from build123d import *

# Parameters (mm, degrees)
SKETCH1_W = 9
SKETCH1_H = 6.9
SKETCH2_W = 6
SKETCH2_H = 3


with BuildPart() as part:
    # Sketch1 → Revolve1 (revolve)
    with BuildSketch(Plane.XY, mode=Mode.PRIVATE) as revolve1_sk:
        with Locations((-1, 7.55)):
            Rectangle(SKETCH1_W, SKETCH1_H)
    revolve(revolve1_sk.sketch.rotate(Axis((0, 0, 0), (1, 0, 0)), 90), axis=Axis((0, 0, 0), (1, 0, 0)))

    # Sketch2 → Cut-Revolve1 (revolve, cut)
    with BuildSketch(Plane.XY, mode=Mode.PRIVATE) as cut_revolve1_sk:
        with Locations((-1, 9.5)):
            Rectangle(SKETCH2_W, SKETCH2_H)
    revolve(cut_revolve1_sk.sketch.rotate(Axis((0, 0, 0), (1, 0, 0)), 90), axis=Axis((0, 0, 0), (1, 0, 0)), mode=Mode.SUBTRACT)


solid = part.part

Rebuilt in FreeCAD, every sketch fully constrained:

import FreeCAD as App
import Part
import Sketcher

V = App.Vector
Q = App.Units.Quantity

doc = App.newDocument("Part")
body = doc.addObject("PartDesign::Body", "Body")

# Sketch on XY plane
sketch1 = body.newObject("Sketcher::SketchObject", "Sketch")
sketch1.AttachmentSupport = (doc.getObject("XY_Plane"), [""])
sketch1.MapMode = "FlatFace"
sketch1.addGeometry([
    Part.LineSegment(V(-5.5, 11, 0), V(-5.5, 4.1, 0)),
    Part.LineSegment(V(-5.5, 4.1, 0), V(3.5, 4.1, 0)),
    Part.LineSegment(V(3.5, 4.1, 0), V(3.5, 11, 0)),
    Part.LineSegment(V(3.5, 11, 0), V(-5.5, 11, 0)),
], False)
sketch1.addConstraint([
    Sketcher.Constraint("Coincident", 0, 2, 1, 1),
    Sketcher.Constraint("Coincident", 1, 2, 2, 1),
    Sketcher.Constraint("Coincident", 2, 2, 3, 1),
    Sketcher.Constraint("Coincident", 3, 2, 0, 1),
    Sketcher.Constraint("Vertical", 0),
    Sketcher.Constraint("Horizontal", 1),
    Sketcher.Constraint("Vertical", 2),
    Sketcher.Constraint("Horizontal", 3),
    Sketcher.Constraint("DistanceX", 1, 1, 1, 2, Q("9 mm")),
    Sketcher.Constraint("DistanceY", 0, 2, 0, 1, Q("6.9 mm")),
    Sketcher.Constraint("DistanceY", -1, 1, 2, 2, Q("11 mm")),
    Sketcher.Constraint("DistanceX", 0, 2, -1, 1, Q("5.5 mm")),
])
revolution = body.newObject("PartDesign::Revolution", "Revolution")
revolution.Profile = sketch1
revolution.ReferenceAxis = (sketch1, ["H_Axis"])
revolution.Angle = 360

# Sketch on XY plane
sketch2 = body.newObject("Sketcher::SketchObject", "Sketch001")
sketch2.AttachmentSupport = (doc.getObject("XY_Plane"), [""])
sketch2.MapMode = "FlatFace"
sketch2.addGeometry([
    Part.LineSegment(V(-4, 11, 0), V(-4, 8, 0)),
    Part.LineSegment(V(-4, 8, 0), V(2, 8, 0)),
    Part.LineSegment(V(2, 8, 0), V(2, 11, 0)),
    Part.LineSegment(V(2, 11, 0), V(-4, 11, 0)),
], False)
sketch2.addConstraint([
    Sketcher.Constraint("Coincident", 0, 2, 1, 1),
    Sketcher.Constraint("Coincident", 1, 2, 2, 1),
    Sketcher.Constraint("Coincident", 2, 2, 3, 1),
    Sketcher.Constraint("Coincident", 3, 2, 0, 1),
    Sketcher.Constraint("Vertical", 0),
    Sketcher.Constraint("Horizontal", 1),
    Sketcher.Constraint("Vertical", 2),
    Sketcher.Constraint("Horizontal", 3),
    Sketcher.Constraint("DistanceX", 1, 1, 1, 2, Q("6 mm")),
    Sketcher.Constraint("DistanceY", 0, 2, 0, 1, Q("3 mm")),
    Sketcher.Constraint("DistanceX", 0, 2, -1, 1, Q("4 mm")),
    Sketcher.Constraint("DistanceY", -1, 1, 0, 2, Q("8 mm")),
])
groove = body.newObject("PartDesign::Groove", "Groove")
groove.Profile = sketch2
groove.ReferenceAxis = (sketch2, ["H_Axis"])
groove.Angle = 360

doc.recompute()
